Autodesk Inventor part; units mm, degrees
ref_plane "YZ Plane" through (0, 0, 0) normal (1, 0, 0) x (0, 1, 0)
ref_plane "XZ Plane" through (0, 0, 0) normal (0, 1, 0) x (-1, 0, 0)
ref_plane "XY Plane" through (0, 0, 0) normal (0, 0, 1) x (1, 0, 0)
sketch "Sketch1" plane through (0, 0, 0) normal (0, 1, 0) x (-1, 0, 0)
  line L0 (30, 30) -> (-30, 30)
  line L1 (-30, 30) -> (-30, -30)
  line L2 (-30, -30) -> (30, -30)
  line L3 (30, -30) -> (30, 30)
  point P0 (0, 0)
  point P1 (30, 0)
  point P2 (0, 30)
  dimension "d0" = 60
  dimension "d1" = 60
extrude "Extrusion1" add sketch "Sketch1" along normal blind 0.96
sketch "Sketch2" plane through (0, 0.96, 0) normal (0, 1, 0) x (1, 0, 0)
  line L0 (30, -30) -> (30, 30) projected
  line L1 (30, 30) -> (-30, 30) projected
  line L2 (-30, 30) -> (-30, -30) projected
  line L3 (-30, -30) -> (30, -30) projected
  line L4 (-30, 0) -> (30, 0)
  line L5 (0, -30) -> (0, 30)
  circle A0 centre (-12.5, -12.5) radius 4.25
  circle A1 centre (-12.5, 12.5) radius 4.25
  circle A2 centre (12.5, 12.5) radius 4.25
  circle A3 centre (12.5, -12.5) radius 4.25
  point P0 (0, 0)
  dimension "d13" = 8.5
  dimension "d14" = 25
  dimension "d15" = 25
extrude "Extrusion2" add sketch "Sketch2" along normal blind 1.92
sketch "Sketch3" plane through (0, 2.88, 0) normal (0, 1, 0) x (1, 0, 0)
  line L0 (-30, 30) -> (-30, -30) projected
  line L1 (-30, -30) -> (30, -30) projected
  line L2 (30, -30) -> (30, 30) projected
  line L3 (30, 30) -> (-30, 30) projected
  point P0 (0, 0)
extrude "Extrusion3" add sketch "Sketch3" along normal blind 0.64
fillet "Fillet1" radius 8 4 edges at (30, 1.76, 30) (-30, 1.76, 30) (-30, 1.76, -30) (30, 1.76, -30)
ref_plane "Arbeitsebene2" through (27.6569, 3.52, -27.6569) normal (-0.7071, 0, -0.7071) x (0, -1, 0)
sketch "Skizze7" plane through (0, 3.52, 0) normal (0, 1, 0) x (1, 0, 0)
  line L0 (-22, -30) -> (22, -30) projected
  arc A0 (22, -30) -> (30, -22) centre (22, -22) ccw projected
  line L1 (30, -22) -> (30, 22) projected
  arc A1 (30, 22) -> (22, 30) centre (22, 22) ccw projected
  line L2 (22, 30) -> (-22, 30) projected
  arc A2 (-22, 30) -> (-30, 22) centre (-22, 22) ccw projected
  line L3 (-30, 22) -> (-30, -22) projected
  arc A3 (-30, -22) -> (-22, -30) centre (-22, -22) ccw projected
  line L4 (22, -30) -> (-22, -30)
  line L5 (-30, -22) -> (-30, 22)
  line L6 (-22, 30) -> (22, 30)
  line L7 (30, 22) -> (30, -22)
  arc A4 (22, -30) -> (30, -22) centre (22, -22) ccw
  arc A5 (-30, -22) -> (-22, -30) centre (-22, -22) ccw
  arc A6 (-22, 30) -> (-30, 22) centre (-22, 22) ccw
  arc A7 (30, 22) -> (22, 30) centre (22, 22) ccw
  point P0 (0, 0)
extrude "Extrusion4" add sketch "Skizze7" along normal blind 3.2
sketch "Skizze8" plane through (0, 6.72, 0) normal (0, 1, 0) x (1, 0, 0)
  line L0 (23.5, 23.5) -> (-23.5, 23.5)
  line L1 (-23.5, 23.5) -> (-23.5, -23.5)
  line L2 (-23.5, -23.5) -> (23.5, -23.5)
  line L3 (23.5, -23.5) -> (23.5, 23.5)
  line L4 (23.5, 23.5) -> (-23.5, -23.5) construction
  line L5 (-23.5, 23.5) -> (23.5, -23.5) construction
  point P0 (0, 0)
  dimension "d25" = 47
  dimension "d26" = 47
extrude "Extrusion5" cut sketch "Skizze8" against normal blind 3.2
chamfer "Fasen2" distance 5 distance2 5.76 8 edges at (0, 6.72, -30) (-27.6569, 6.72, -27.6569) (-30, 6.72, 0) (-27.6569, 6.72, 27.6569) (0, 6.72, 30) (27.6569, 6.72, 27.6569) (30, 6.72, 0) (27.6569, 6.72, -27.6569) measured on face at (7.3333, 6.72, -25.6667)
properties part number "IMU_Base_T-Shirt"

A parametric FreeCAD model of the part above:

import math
import FreeCAD as App
import Part
import Sketcher
from FreeCAD import Vector
Q = App.Units.Quantity


def edges_at(feature, points):
    """Names of the edges that pass closest to the given points."""
    edges = feature.Shape.Edges
    near = lambda p: min(range(len(edges)), key=lambda i: edges[i].distToShape(Part.Vertex(*p))[0])
    return sorted({f"Edge{near(p) + 1}" for p in points})


def add_polygon(sketch, points):
    """Adds a closed chain of lines whose ends are joined by coincident constraints."""
    first, n = sketch.GeometryCount, len(points)
    for a, b in zip(points, points[1:] + points[:1]):
        sketch.addGeometry(Part.LineSegment(App.Vector(*a, 0), App.Vector(*b, 0)), False)
    for i in range(n):
        sketch.addConstraint(Sketcher.Constraint("Coincident", first + i, 2, first + (i + 1) % n, 1))

doc = App.newDocument("Part")
body = doc.addObject("PartDesign::Body", "Body")

# Sketch on XZ plane
sketch1 = body.newObject("Sketcher::SketchObject", "Sketch")
sketch1.AttachmentSupport = (doc.getObject("XZ_Plane"), [""])
sketch1.MapMode = "FlatFace"
add_polygon(sketch1, [(-30, -30), (-30, 30), (30, 30), (30, -30)])  # lines 0-3
sketch1.addConstraint(Sketcher.Constraint("Vertical", 0))
sketch1.addConstraint(Sketcher.Constraint("Horizontal", 1))
sketch1.addConstraint(Sketcher.Constraint("Vertical", 2))
sketch1.addConstraint(Sketcher.Constraint("Horizontal", 3))
sketch1.addConstraint(Sketcher.Constraint("Symmetric", 0, 2, 2, 2, -1, 1))
sketch1.addConstraint(Sketcher.Constraint("Equal", 3, 0))
sketch1.addConstraint(Sketcher.Constraint("DistanceX", 1, 1, 1, 2, Q("60 mm")))
pad1 = body.newObject("PartDesign::Pad", "Pad")
pad1.Profile = sketch1
pad1.Length = 0.96
pad1.Reversed = True

# Sketch on XZ plane
sketch2 = body.newObject("Sketcher::SketchObject", "Sketch001")
sketch2.AttachmentSupport = (doc.getObject("XZ_Plane"), [""])
sketch2.MapMode = "FlatFace"
sketch2.AttachmentOffset = App.Placement(Vector(0, 0, -0.96), App.Rotation())
add_polygon(sketch2, [(30, 30), (30, -30), (-30, -30), (-30, 30)])  # lines 0-3
sketch2.addGeometry(Part.Circle(Vector(12.5, 12.5, 0), Vector(0, 0, 1), 4.2), False)  # 4
sketch2.addGeometry(Part.Circle(Vector(-12.5, 12.5, 0), Vector(0, 0, 1), 4.2), False)  # 5
sketch2.addGeometry(Part.Circle(Vector(12.5, -12.5, 0), Vector(0, 0, 1), 4.2), False)  # 6
sketch2.addGeometry(Part.Circle(Vector(-12.5, -12.5, 0), Vector(0, 0, 1), 4.2), False)  # 7
sketch2.addConstraint(Sketcher.Constraint("Vertical", 0))
sketch2.addConstraint(Sketcher.Constraint("Horizontal", 1))
sketch2.addConstraint(Sketcher.Constraint("Vertical", 2))
sketch2.addConstraint(Sketcher.Constraint("Horizontal", 3))
sketch2.addConstraint(Sketcher.Constraint("Equal", 4, 5))
sketch2.addConstraint(Sketcher.Constraint("Equal", 5, 6))
sketch2.addConstraint(Sketcher.Constraint("Equal", 6, 7))
sketch2.addConstraint(Sketcher.Constraint("Symmetric", 5, 3, 6, 3, -1, 1))
sketch2.addConstraint(Sketcher.Constraint("Symmetric", 4, 3, 7, 3, -1, 1))
sketch2.addConstraint(Sketcher.Constraint("Symmetric", 0, 2, 2, 2, -1, 1))
sketch2.addConstraint(Sketcher.Constraint("Symmetric", 4, 3, 5, 3, -2))
sketch2.addConstraint(Sketcher.Constraint("Equal", 3, 0))
sketch2.addConstraint(Sketcher.Constraint("Diameter", 4, Q("8.5 mm")))
sketch2.addConstraint(Sketcher.Constraint("DistanceX", 5, 3, 4, 3, Q("25 mm")))
sketch2.addConstraint(Sketcher.Constraint("DistanceY", 6, 3, 4, 3, Q("25 mm")))
sketch2.addConstraint(Sketcher.Constraint("DistanceX", 1, 2, 1, 1, Q("60 mm")))
pad2 = body.newObject("PartDesign::Pad", "Pad001")
pad2.Profile = sketch2
pad2.Length = 1.92
pad2.Reversed = True

# Sketch on XZ plane
sketch3 = body.newObject("Sketcher::SketchObject", "Sketch002")
sketch3.AttachmentSupport = (doc.getObject("XZ_Plane"), [""])
sketch3.MapMode = "FlatFace"
sketch3.AttachmentOffset = App.Placement(Vector(0, 0, -2.88), App.Rotation())
add_polygon(sketch3, [(30, -30), (-30, -30), (-30, 30), (30, 30)])  # lines 0-3
sketch3.addConstraint(Sketcher.Constraint("Horizontal", 0))
sketch3.addConstraint(Sketcher.Constraint("Vertical", 1))
sketch3.addConstraint(Sketcher.Constraint("Horizontal", 2))
sketch3.addConstraint(Sketcher.Constraint("Vertical", 3))
sketch3.addConstraint(Sketcher.Constraint("Symmetric", 0, 2, 2, 2, -1, 1))
sketch3.addConstraint(Sketcher.Constraint("Equal", 2, 1))
sketch3.addConstraint(Sketcher.Constraint("DistanceX", 0, 2, 0, 1, Q("60 mm")))
pad3 = body.newObject("PartDesign::Pad", "Pad002")
pad3.Profile = sketch3
pad3.Length = 0.64
pad3.Reversed = True
doc.recompute()

fillet = body.newObject("PartDesign::Fillet", "Fillet")
fillet.Base = (pad3, edges_at(pad3, [
    (30, 1.76, 30),
    (-30, 1.76, 30),
    (-30, 1.76, -30),
    (30, 1.76, -30),
]))
fillet.Radius = 8

# Sketch on XZ plane
sketch4 = body.newObject("Sketcher::SketchObject", "Sketch003")
sketch4.AttachmentSupport = (doc.getObject("XZ_Plane"), [""])
sketch4.MapMode = "FlatFace"
sketch4.AttachmentOffset = App.Placement(Vector(0, 0, -3.52), App.Rotation())
sketch4.addGeometry(Part.ArcOfCircle(Part.Circle(Vector(-22, 22, 0), Vector(0, 0, 1), 8), math.radians(90), math.radians(180)), False)
sketch4.addGeometry(Part.LineSegment(Vector(-22, 30, 0), Vector(22, 30, 0)), False)
sketch4.addGeometry(Part.ArcOfCircle(Part.Circle(Vector(22, 22, 0), Vector(0, 0, 1), 8), math.radians(0), math.radians(90)), False)
sketch4.addGeometry(Part.LineSegment(Vector(30, 22, 0), Vector(30, -22, 0)), False)
sketch4.addGeometry(Part.ArcOfCircle(Part.Circle(Vector(22, -22, 0), Vector(0, 0, 1), 8), math.radians(-90), math.radians(0)), False)
sketch4.addGeometry(Part.LineSegment(Vector(22, -30, 0), Vector(-22, -30, 0)), False)
sketch4.addGeometry(Part.ArcOfCircle(Part.Circle(Vector(-22, -22, 0), Vector(0, 0, 1), 8), math.radians(180), math.radians(270)), False)
sketch4.addGeometry(Part.LineSegment(Vector(-30, -22, 0), Vector(-30, 22, 0)), False)
sketch4.addConstraint(Sketcher.Constraint("Tangent", 0, 1, 1, 1))
sketch4.addConstraint(Sketcher.Constraint("Tangent", 1, 2, 2, 2))
sketch4.addConstraint(Sketcher.Constraint("Tangent", 2, 1, 3, 1))
sketch4.addConstraint(Sketcher.Constraint("Tangent", 3, 2, 4, 2))
sketch4.addConstraint(Sketcher.Constraint("Tangent", 4, 1, 5, 1))
sketch4.addConstraint(Sketcher.Constraint("Tangent", 5, 2, 6, 2))
sketch4.addConstraint(Sketcher.Constraint("Tangent", 6, 1, 7, 1))
sketch4.addConstraint(Sketcher.Constraint("Tangent", 7, 2, 0, 2))
sketch4.addConstraint(Sketcher.Constraint("Horizontal", 1))
sketch4.addConstraint(Sketcher.Constraint("Vertical", 3))
sketch4.addConstraint(Sketcher.Constraint("Horizontal", 5))
sketch4.addConstraint(Sketcher.Constraint("Vertical", 7))
sketch4.addConstraint(Sketcher.Constraint("Equal", 0, 2))
sketch4.addConstraint(Sketcher.Constraint("Equal", 2, 4))
sketch4.addConstraint(Sketcher.Constraint("Equal", 4, 6))
sketch4.addConstraint(Sketcher.Constraint("Symmetric", 0, 3, 4, 3, -1, 1))
sketch4.addConstraint(Sketcher.Constraint("Equal", 5, 3))
sketch4.addConstraint(Sketcher.Constraint("Radius", 0, Q("8 mm")))
sketch4.addConstraint(Sketcher.Constraint("DistanceX", 1, 1, 1, 2, Q("44 mm")))
pad4 = body.newObject("PartDesign::Pad", "Pad003")
pad4.Profile = sketch4
pad4.Length = 3.2
pad4.Reversed = True

# Sketch on XZ plane
sketch5 = body.newObject("Sketcher::SketchObject", "Sketch004")
sketch5.AttachmentSupport = (doc.getObject("XZ_Plane"), [""])
sketch5.MapMode = "FlatFace"
sketch5.AttachmentOffset = App.Placement(Vector(0, 0, -6.72), App.Rotation())
add_polygon(sketch5, [(24, 24), (24, -24), (-24, -24), (-24, 24)])  # lines 0-3
sketch5.addConstraint(Sketcher.Constraint("Vertical", 0))
sketch5.addConstraint(Sketcher.Constraint("Horizontal", 1))
sketch5.addConstraint(Sketcher.Constraint("Vertical", 2))
sketch5.addConstraint(Sketcher.Constraint("Horizontal", 3))
sketch5.addConstraint(Sketcher.Constraint("Symmetric", 0, 2, 2, 2, -1, 1))
sketch5.addConstraint(Sketcher.Constraint("Equal", 3, 0))
sketch5.addConstraint(Sketcher.Constraint("DistanceX", 1, 2, 1, 1, Q("47 mm")))
pocket1 = body.newObject("PartDesign::Pocket", "Pocket")
pocket1.Profile = sketch5
pocket1.Length = 3.2
pocket1.Reversed = True
doc.recompute()

chamfer = body.newObject("PartDesign::Chamfer", "Chamfer")
chamfer.Base = (pocket1, edges_at(pocket1, [
    (0, 6.72, -30),
    (-27.657, 6.72, -27.657),
    (-30, 6.72, 0),
    (-27.657, 6.72, 27.657),
    (0, 6.72, 30),
    (27.657, 6.72, 27.657),
    (30, 6.72, 0),
    (27.657, 6.72, -27.657),
]))
chamfer.ChamferType = "Two distances"
chamfer.Size = 5
chamfer.Size2 = 5.76
chamfer.FlipDirection = True

doc.recompute()
